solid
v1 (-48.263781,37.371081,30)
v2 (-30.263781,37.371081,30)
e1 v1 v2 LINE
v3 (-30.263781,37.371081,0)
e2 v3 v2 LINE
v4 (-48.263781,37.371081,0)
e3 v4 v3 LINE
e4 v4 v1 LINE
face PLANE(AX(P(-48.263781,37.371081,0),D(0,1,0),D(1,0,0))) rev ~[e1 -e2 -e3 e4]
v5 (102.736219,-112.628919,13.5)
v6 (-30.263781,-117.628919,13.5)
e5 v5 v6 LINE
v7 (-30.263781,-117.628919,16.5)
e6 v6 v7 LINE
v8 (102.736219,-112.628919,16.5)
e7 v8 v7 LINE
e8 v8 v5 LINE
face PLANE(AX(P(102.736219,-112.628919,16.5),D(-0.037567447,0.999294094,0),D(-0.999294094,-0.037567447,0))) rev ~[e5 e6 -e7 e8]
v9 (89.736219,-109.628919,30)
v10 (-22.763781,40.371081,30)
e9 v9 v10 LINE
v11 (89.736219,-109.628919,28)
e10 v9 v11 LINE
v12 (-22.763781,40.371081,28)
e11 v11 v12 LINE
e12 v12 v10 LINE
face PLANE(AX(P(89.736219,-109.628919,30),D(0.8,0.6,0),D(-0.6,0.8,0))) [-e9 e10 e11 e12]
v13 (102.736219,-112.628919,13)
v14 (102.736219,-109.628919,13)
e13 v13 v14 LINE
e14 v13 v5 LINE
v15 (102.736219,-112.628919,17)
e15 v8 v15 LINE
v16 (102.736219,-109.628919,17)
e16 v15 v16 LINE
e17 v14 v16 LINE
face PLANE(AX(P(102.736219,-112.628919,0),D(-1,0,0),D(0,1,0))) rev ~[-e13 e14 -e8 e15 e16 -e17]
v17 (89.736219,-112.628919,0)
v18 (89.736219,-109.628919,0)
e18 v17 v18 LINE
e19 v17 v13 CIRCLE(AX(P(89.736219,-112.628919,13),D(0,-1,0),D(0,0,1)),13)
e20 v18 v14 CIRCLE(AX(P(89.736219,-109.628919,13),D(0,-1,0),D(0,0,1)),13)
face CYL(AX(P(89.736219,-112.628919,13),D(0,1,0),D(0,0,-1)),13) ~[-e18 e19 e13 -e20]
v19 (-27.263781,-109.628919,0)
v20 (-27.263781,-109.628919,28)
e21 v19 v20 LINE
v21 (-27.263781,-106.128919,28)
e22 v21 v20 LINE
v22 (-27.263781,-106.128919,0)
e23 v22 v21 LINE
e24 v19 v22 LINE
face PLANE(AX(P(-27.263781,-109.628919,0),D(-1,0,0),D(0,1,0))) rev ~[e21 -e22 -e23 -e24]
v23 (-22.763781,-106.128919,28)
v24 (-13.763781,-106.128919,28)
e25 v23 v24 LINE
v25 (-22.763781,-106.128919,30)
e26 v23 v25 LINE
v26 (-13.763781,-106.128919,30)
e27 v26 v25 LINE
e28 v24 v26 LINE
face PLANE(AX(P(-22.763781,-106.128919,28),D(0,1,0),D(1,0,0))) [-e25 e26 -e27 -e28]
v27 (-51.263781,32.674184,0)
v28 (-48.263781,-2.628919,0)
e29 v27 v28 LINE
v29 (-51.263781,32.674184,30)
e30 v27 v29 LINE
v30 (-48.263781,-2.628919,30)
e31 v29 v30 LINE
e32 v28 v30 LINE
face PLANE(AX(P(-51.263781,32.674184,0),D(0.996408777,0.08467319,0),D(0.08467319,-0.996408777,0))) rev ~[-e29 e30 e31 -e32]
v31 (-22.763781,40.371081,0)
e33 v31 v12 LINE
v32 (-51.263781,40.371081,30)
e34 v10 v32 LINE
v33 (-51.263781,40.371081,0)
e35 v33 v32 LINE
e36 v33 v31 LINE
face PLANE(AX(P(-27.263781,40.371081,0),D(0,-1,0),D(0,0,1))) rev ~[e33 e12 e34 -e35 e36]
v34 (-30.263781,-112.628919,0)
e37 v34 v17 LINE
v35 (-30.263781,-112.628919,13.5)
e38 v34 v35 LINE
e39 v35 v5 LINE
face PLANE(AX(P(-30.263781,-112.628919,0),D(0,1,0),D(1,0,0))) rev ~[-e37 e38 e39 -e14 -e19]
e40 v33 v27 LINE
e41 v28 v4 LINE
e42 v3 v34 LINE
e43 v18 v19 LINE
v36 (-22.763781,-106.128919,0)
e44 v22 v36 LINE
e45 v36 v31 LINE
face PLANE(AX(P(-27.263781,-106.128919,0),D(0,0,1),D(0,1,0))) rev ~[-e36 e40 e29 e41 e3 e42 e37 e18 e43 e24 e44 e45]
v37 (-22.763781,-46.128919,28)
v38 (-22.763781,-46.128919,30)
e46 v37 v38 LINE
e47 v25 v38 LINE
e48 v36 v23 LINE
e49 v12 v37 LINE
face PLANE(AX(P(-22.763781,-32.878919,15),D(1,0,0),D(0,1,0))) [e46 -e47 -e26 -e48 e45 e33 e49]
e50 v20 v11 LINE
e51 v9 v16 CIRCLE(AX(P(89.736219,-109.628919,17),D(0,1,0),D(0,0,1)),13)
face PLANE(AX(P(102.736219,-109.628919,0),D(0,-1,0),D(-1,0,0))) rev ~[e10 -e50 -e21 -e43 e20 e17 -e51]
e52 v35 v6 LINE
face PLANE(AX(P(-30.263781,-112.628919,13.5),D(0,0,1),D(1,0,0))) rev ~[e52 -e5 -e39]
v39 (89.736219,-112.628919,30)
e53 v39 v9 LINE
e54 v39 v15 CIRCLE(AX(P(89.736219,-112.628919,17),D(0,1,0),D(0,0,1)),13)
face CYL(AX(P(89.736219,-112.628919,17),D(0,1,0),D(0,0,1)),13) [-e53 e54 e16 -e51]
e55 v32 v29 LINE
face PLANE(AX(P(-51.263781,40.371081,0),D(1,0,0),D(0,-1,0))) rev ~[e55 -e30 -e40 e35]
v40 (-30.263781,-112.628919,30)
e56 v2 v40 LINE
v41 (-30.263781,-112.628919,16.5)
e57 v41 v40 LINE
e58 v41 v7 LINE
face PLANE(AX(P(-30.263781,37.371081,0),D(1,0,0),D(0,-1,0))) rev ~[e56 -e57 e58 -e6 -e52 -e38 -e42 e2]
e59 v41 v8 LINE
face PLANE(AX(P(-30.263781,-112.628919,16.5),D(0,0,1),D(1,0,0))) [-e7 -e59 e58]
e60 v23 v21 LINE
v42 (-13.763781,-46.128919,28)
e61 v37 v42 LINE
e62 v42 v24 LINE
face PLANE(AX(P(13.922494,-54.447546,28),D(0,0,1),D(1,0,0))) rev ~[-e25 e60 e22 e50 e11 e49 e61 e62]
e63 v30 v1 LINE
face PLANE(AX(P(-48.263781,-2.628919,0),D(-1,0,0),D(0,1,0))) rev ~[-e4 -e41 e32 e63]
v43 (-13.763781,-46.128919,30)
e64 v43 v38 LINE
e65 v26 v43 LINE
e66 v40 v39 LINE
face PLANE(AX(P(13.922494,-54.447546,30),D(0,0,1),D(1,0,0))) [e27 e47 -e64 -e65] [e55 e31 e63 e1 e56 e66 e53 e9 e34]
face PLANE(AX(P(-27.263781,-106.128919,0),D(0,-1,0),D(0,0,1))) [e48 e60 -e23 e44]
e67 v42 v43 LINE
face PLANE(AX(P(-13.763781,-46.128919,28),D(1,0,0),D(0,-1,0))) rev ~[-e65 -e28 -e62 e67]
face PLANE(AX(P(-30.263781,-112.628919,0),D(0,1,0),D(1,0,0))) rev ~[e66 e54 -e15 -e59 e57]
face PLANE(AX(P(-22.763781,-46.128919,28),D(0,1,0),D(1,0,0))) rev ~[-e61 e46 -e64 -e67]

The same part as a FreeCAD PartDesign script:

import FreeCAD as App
import Part
import Sketcher

V = App.Vector


def edges_at(feature, points):
    """Names of the edges that pass closest to the given points."""
    edges = feature.Shape.Edges
    near = lambda p: min(range(len(edges)), key=lambda i: edges[i].distToShape(Part.Vertex(*p))[0])
    return sorted({f"Edge{near(p) + 1}" for p in points})


def add_polygon(sketch, points):
    """Adds a closed chain of lines whose ends are joined by coincident constraints."""
    first, n = sketch.GeometryCount, len(points)
    for a, b in zip(points, points[1:] + points[:1]):
        sketch.addGeometry(Part.LineSegment(App.Vector(*a, 0), App.Vector(*b, 0)), False)
    for i in range(n):
        sketch.addConstraint(Sketcher.Constraint("Coincident", first + i, 2, first + (i + 1) % n, 1))

doc = App.newDocument("Part")
body = doc.addObject("PartDesign::Body", "Body")

# Sketch on XY plane
sketch1 = doc.addObject("Sketcher::SketchObject", "Sketch")
body.addObject(sketch1)
sketch1.AttachmentSupport = (doc.XY_Plane, [""])
sketch1.MapMode = "FlatFace"
add_polygon(sketch1, [(-51.263781, 32.674184), (-48.263781, -2.628919), (-48.263781, 37.371081), (-30.263781, 37.371081), (-30.263781, -112.628919), (102.736219, -112.628919), (102.736219, -109.628919), (-27.263781, -109.628919), (-27.263781, 40.371081), (-51.263781, 40.371081)])  # lines 0-9
sketch1.addConstraint([
    Sketcher.Constraint("Vertical", 1),
    Sketcher.Constraint("Horizontal", 2),
    Sketcher.Constraint("Vertical", 3),
    Sketcher.Constraint("Horizontal", 4),
    Sketcher.Constraint("Vertical", 5),
    Sketcher.Constraint("Horizontal", 6),
    Sketcher.Constraint("Vertical", 7),
    Sketcher.Constraint("Horizontal", 8),
    Sketcher.Constraint("Vertical", 9),
    Sketcher.Constraint("Equal", 3, 7),
    Sketcher.Constraint("DistanceX", 2, 1, 2, 2, 18.0),
    Sketcher.Constraint("DistanceX", 4, 1, 4, 2, 133.0),
    Sketcher.Constraint("DistanceX", 6, 2, 6, 1, 130.0),
    Sketcher.Constraint("DistanceX", 8, 2, 8, 1, 24.0),
    Sketcher.Constraint("DistanceY", 1, 1, 1, 2, 40.0),
    Sketcher.Constraint("DistanceY", 3, 2, 3, 1, 150.0),
    Sketcher.Constraint("DistanceY", 5, 1, 5, 2, 3.0),
    Sketcher.Constraint("Distance", 0, 35.430341),
    Sketcher.Constraint("DistanceX", 0, 2, -1, 1, 48.263781),
    Sketcher.Constraint("DistanceY", 0, 2, -1, 1, 2.628919),
])
pad1 = doc.addObject("PartDesign::Pad", "Pad")
body.addObject(pad1)
pad1.Profile = sketch1
pad1.Length = 30

# Sketch on XZ plane
sketch2 = doc.addObject("Sketcher::SketchObject", "Sketch001")
body.addObject(sketch2)
sketch2.AttachmentSupport = (doc.XZ_Plane, [""])
sketch2.MapMode = "FlatFace"
sketch2.AttachmentOffset = App.Placement(V(0, 0, 112.628919), App.Rotation())
add_polygon(sketch2, [(-30.263781, 16.5), (-30.263781, 13.5), (102.736219, 13.5), (102.736219, 16.5)])  # lines 0-3
sketch2.addConstraint([
    Sketcher.Constraint("Vertical", 0),
    Sketcher.Constraint("Horizontal", 1),
    Sketcher.Constraint("Vertical", 2),
    Sketcher.Constraint("Horizontal", 3),
    Sketcher.Constraint("DistanceX", 1, 1, 1, 2, 133.0),
    Sketcher.Constraint("DistanceY", 0, 2, 0, 1, 3.0),
    Sketcher.Constraint("DistanceY", -1, 1, 0, 2, 13.5),
    Sketcher.Constraint("DistanceX", 0, 2, -1, 1, 30.263781),
])
pad2 = doc.addObject("PartDesign::Pad", "Pad001")
body.addObject(pad2)
pad2.Profile = sketch2
pad2.Length = 5

# Sketch on XY plane
sketch3 = doc.addObject("Sketcher::SketchObject", "Sketch002")
body.addObject(sketch3)
sketch3.AttachmentSupport = (doc.XY_Plane, [""])
sketch3.MapMode = "FlatFace"
sketch3.AttachmentOffset = App.Placement(V(0, 0, 16.5), App.Rotation())
add_polygon(sketch3, [(102.736219, -112.628919), (-30.263781, -117.628919), (102.736219, -117.628919)])  # lines 0-2
sketch3.addConstraint([
    Sketcher.Constraint("Horizontal", 1),
    Sketcher.Constraint("Vertical", 2),
    Sketcher.Constraint("DistanceX", 1, 1, 1, 2, 133.0),
    Sketcher.Constraint("DistanceY", 2, 1, 2, 2, 5.0),
    Sketcher.Constraint("DistanceX", 0, 2, -1, 1, 30.263781),
    Sketcher.Constraint("DistanceY", 0, 2, -1, 1, 117.628919),
])
pocket1 = doc.addObject("PartDesign::Pocket", "Pocket")
body.addObject(pocket1)
pocket1.Profile = sketch3
pocket1.Type = "ThroughAll"
doc.recompute()

fillet = doc.addObject("PartDesign::Fillet", "Fillet")
body.addObject(fillet)
fillet.Base = (pocket1, edges_at(pocket1, [(102.736, -111.129, 0), (102.736, -111.129, 30)]))
fillet.Radius = 13

# Sketch on YZ plane
sketch4 = doc.addObject("Sketcher::SketchObject", "Sketch003")
body.addObject(sketch4)
sketch4.AttachmentSupport = (doc.YZ_Plane, [""])
sketch4.MapMode = "FlatFace"
sketch4.AttachmentOffset = App.Placement(V(0, 0, -27.263781), App.Rotation())
add_polygon(sketch4, [(-106.128919, 30), (-106.128919, 0), (40.371081, 0), (40.371081, 30)])  # lines 0-3
sketch4.addConstraint([
    Sketcher.Constraint("Vertical", 0),
    Sketcher.Constraint("Horizontal", 1),
    Sketcher.Constraint("Vertical", 2),
    Sketcher.Constraint("Horizontal", 3),
    Sketcher.Constraint("PointOnObject", 0, 2, -1),
    Sketcher.Constraint("DistanceY", 0, 2, 0, 1, 30.0),
    Sketcher.Constraint("DistanceX", 1, 1, 1, 2, 146.5),
    Sketcher.Constraint("DistanceX", 0, 2, -1, 1, 106.128919),
])
pad3 = doc.addObject("PartDesign::Pad", "Pad002")
body.addObject(pad3)
pad3.Profile = sketch4
pad3.Length = 4.5

# Sketch on XY plane
sketch5 = doc.addObject("Sketcher::SketchObject", "Sketch004")
body.addObject(sketch5)
sketch5.AttachmentSupport = (doc.XY_Plane, [""])
sketch5.MapMode = "FlatFace"
sketch5.AttachmentOffset = App.Placement(V(0, 0, 30), App.Rotation())
add_polygon(sketch5, [(89.736219, -109.628919), (-22.763781, 40.371081), (-22.763781, -106.128919), (-27.263781, -106.128919), (-27.263781, -109.628919)])  # lines 0-4
sketch5.addConstraint([
    Sketcher.Constraint("Vertical", 1),
    Sketcher.Constraint("Horizontal", 2),
    Sketcher.Constraint("Vertical", 3),
    Sketcher.Constraint("Horizontal", 4),
    Sketcher.Constraint("DistanceX", 4, 1, 4, 2, 117.0),
    Sketcher.Constraint("DistanceX", 2, 2, 2, 1, 4.5),
    Sketcher.Constraint("DistanceY", 1, 2, 1, 1, 146.5),
    Sketcher.Constraint("DistanceY", 3, 2, 3, 1, 3.5),
    Sketcher.Constraint("DistanceX", 0, 2, -1, 1, 22.763781),
    Sketcher.Constraint("DistanceY", -1, 1, 0, 2, 40.371081),
])
pad4 = doc.addObject("PartDesign::Pad", "Pad003")
body.addObject(pad4)
pad4.Profile = sketch5
pad4.Length = 2
pad4.Reversed = True

# Sketch on XY plane
sketch6 = doc.addObject("Sketcher::SketchObject", "Sketch005")
body.addObject(sketch6)
sketch6.AttachmentSupport = (doc.XY_Plane, [""])
sketch6.MapMode = "FlatFace"
sketch6.AttachmentOffset = App.Placement(V(0, 0, 28), App.Rotation())
add_polygon(sketch6, [(-22.763781, -106.128919), (-22.763781, -46.128919), (-13.763781, -46.128919), (-13.763781, -106.128919)])  # lines 0-3
sketch6.addConstraint([
    Sketcher.Constraint("Vertical", 0),
    Sketcher.Constraint("Horizontal", 1),
    Sketcher.Constraint("Vertical", 2),
    Sketcher.Constraint("Horizontal", 3),
    Sketcher.Constraint("DistanceX", 1, 1, 1, 2, 9.0),
    Sketcher.Constraint("DistanceY", 0, 1, 0, 2, 60.0),
    Sketcher.Constraint("DistanceX", 0, 2, -1, 1, 22.763781),
    Sketcher.Constraint("DistanceY", 0, 2, -1, 1, 46.128919),
])
pocket2 = doc.addObject("PartDesign::Pocket", "Pocket001")
body.addObject(pocket2)
pocket2.Profile = sketch6
pocket2.Type = "ThroughAll"
pocket2.Reversed = True

doc.recompute()
